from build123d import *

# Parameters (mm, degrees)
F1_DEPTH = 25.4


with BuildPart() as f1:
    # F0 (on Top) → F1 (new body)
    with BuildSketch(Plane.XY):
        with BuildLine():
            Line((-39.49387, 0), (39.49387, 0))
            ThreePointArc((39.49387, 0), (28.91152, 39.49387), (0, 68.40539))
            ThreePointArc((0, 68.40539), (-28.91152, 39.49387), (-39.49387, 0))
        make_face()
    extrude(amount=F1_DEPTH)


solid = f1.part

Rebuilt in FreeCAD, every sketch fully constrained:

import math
import FreeCAD as App
import Part
import Sketcher
from FreeCAD import Vector

doc = App.newDocument("Part")
params = doc.addObject("Spreadsheet::Sheet", "Params")
for row, (alias, value) in enumerate([
    ("pad1_length", "1 in"),
], start=1):
    params.set(f"A{row}", alias)
    params.set(f"B{row}", "=" + value)
    params.setAlias(f"B{row}", alias)

body = doc.addObject("PartDesign::Body", "Body")

# Sketch on XY plane
sketch1 = body.newObject("Sketcher::SketchObject", "Sketch")
sketch1.AttachmentSupport = (doc.getObject("XY_Plane"), [""])
sketch1.MapMode = "FlatFace"
sketch1.addGeometry(Part.LineSegment(Vector(-39, 0, 0), Vector(39, 0, 0)), False)
sketch1.addGeometry(Part.ArcOfCircle(Part.Circle(Vector(-39, 0, 0), Vector(0, 0, 1), 79), math.radians(0), math.radians(60)), False)
sketch1.addGeometry(Part.ArcOfCircle(Part.Circle(Vector(39, 0, 0), Vector(0, 0, 1), 79), math.radians(120), math.radians(180)), False)
sketch1.addConstraint(Sketcher.Constraint("Coincident", 0, 2, 1, 1))
sketch1.addConstraint(Sketcher.Constraint("Coincident", 1, 2, 2, 1))
sketch1.addConstraint(Sketcher.Constraint("Coincident", 2, 2, 0, 1))
sketch1.addConstraint(Sketcher.Constraint("Horizontal", 0))
sketch1.addConstraint(Sketcher.Constraint("Coincident", 0, 2, 2, 3))
sketch1.addConstraint(Sketcher.Constraint("Coincident", 2, 2, 1, 3))
sketch1.addConstraint(Sketcher.Constraint("Symmetric", 1, 3, 2, 3, -1, 1))
sketch1.addConstraint(Sketcher.Constraint("Radius", 1, 78.987739))
pad1 = body.newObject("PartDesign::Pad", "Pad")
pad1.Profile = sketch1
pad1.setExpression("Length", "Params.pad1_length")

doc.recompute()
